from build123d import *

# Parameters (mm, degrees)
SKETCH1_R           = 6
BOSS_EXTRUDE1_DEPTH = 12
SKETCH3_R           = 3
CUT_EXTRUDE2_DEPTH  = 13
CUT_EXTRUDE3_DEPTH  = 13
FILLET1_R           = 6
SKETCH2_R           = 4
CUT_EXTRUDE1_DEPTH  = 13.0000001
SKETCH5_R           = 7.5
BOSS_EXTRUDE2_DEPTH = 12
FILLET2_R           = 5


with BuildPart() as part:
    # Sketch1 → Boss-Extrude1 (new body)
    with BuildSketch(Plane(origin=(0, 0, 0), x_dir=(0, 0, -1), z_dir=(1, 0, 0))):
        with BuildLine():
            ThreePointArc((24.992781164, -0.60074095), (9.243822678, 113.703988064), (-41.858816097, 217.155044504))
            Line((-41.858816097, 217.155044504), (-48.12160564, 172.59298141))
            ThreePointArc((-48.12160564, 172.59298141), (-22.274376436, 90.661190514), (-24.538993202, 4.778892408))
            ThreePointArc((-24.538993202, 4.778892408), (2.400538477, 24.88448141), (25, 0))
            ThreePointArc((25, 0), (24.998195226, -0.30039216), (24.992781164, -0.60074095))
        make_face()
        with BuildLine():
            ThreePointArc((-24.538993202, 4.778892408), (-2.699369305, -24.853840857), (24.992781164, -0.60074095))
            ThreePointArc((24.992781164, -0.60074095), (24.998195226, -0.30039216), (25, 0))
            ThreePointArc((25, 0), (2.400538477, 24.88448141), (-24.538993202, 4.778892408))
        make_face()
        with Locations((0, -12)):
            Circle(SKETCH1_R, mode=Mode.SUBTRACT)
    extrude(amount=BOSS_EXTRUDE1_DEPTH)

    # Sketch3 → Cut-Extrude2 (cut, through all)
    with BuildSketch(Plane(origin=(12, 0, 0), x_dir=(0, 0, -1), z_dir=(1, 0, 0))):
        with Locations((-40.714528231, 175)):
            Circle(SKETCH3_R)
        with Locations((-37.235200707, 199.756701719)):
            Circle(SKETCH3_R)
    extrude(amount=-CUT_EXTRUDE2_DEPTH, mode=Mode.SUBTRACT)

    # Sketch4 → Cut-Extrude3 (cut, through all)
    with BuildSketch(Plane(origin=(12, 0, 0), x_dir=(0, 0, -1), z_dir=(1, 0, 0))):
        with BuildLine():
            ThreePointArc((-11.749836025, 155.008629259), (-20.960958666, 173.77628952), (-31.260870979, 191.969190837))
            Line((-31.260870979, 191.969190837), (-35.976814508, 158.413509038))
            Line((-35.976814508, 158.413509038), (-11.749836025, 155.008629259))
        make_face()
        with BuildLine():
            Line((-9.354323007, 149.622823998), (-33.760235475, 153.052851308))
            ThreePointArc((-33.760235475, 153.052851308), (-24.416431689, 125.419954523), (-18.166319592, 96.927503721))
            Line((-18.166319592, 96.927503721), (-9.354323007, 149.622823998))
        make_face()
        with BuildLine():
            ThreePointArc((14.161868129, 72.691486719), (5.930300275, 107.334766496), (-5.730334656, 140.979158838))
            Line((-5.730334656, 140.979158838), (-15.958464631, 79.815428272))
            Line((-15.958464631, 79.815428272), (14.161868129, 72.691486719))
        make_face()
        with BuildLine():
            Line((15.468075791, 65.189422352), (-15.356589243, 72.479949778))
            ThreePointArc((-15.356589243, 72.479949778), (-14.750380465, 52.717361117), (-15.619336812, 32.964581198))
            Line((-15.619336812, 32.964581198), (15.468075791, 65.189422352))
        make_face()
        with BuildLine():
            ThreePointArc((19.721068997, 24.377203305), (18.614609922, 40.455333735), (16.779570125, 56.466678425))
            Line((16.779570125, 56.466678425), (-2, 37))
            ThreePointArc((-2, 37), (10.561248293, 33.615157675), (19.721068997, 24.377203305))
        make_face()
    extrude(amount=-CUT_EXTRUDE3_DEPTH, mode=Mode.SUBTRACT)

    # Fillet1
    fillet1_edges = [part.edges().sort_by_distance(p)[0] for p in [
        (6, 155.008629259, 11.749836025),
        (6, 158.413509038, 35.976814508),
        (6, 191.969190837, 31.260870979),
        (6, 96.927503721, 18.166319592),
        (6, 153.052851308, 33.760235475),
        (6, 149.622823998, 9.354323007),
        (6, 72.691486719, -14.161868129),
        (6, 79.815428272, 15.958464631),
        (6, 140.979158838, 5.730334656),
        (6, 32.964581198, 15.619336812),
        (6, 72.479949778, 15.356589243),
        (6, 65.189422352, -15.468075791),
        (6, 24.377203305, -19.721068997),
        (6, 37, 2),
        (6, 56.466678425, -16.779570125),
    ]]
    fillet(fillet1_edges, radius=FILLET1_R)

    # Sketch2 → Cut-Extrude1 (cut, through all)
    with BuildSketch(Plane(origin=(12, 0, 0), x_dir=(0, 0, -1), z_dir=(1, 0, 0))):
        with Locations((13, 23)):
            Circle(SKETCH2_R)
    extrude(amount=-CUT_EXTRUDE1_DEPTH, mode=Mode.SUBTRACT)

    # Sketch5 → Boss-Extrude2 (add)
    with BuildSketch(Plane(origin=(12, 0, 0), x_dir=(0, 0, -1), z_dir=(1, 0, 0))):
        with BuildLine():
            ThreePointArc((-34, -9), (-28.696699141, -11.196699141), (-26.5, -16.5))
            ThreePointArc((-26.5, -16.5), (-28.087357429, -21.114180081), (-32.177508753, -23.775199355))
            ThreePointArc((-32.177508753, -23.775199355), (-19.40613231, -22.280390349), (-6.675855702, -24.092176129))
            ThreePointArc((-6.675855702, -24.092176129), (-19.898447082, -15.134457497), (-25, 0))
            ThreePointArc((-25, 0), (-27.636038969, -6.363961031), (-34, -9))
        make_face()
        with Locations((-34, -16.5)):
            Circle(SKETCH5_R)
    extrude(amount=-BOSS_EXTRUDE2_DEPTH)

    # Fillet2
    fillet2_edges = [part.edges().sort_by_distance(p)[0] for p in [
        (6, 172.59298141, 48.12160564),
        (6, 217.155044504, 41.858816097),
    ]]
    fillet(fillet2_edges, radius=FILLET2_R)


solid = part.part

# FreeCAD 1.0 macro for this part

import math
import FreeCAD as App
import Part
import Sketcher
from FreeCAD import Vector
Q = App.Units.Quantity


def edges_at(feature, points):
    """Names of the edges that pass closest to the given points."""
    edges = feature.Shape.Edges
    near = lambda p: min(range(len(edges)), key=lambda i: edges[i].distToShape(Part.Vertex(*p))[0])
    return sorted({f"Edge{near(p) + 1}" for p in points})

doc = App.newDocument("Part")
params = doc.addObject("Spreadsheet::Sheet", "Params")
for row, (alias, value) in enumerate([
    ("sketch1_diameter", "12 mm"),
    ("sketch1_radius", "360 mm"),
    ("sketch1_radius2", "260 mm"),
    ("sketch1_radius3", "25 mm"),
    ("sketch1_length", "45 mm"),
    ("pad1_length", "12 mm"),
    ("sketch2_diameter", "6 mm"),
    ("sketch3_radius", "355 mm"),
    ("sketch3_radius2", "265 mm"),
    ("sketch3_radius3", "25 mm"),
    ("fillet_radius", "6 mm"),
    ("sketch4_diameter", "8 mm"),
    ("sketch5_radius", "50 mm"),
    ("sketch5_radius2", "25 mm"),
    ("sketch5_radius3", "9 mm"),
    ("sketch5_radius4", "7.5 mm"),
    ("pad2_length", "12 mm"),
    ("fillet2_radius", "5 mm"),
], start=1):
    params.set(f"A{row}", alias)
    params.set(f"B{row}", "=" + value)
    params.setAlias(f"B{row}", alias)

body = doc.addObject("PartDesign::Body", "Body")

sketch1 = body.newObject("Sketcher::SketchObject", "Sketch")
sketch1.AttachmentSupport = (doc.getObject("YZ_Plane"), [""])
sketch1.MapMode = "FlatFace"
sketch1.addGeometry(Part.ArcOfCircle(Part.Circle(Vector(8.049929, 334.903268, 0), Vector(0, 0, 1), 360), math.radians(-91.376929), math.radians(-54.489824)), False)
sketch1.addGeometry(Part.LineSegment(Vector(217.155045, 41.858816, 0), Vector(172.592981, 48.121606, 0)), False)
sketch1.addGeometry(Part.ArcOfCircle(Part.Circle(Vector(54.479373, 279.744522, 0), Vector(0, 0, 1), 260), math.radians(-101.020237), math.radians(-62.981182)), False)
sketch1.addGeometry(Part.ArcOfCircle(Part.Circle(Vector(0, 0, 0), Vector(0, 0, 1), 25), math.radians(78.979763), math.radians(268.623071)), False)
sketch1.addGeometry(Part.Circle(Vector(-12, 0, 0), Vector(0, 0, 1), 6), False)
sketch1.addConstraint(Sketcher.Constraint("Coincident", 0, 2, 1, 1))
sketch1.addConstraint(Sketcher.Constraint("Coincident", 1, 2, 2, 2))
sketch1.addConstraint(Sketcher.Constraint("Tangent", 2, 1, 3, 1))
sketch1.addConstraint(Sketcher.Constraint("Tangent", 3, 2, 0, 1))
sketch1.addConstraint(Sketcher.Constraint("Coincident", 3, 3, -1, 1))
sketch1.addConstraint(Sketcher.Constraint("PointOnObject", 4, 3, -1))
sketch1.addConstraint(Sketcher.Constraint("Diameter", 4, Q("12 mm")))
sketch1.addConstraint(Sketcher.Constraint("Radius", 0, Q("360 mm")))
sketch1.addConstraint(Sketcher.Constraint("Radius", 2, Q("260 mm")))
sketch1.addConstraint(Sketcher.Constraint("Radius", 3, Q("25 mm")))
sketch1.addConstraint(Sketcher.Constraint("Angle", 1, Q("172 deg")))
sketch1.addConstraint(Sketcher.Constraint("Distance", 1, Q("45 mm")))
sketch1.addConstraint(Sketcher.Constraint("DistanceX", 4, 3, -1, 1, Q("12 mm")))
sketch1.addConstraint(Sketcher.Constraint("DistanceX", -1, 1, 0, 3, Q("8.049929 mm")))
sketch1.addConstraint(Sketcher.Constraint("DistanceX", -1, 1, 1, 2, Q("172.592981 mm")))
sketch1.setExpression("Constraints[6]", "Params.sketch1_diameter")
sketch1.setExpression("Constraints[7]", "Params.sketch1_radius")
sketch1.setExpression("Constraints[8]", "Params.sketch1_radius2")
sketch1.setExpression("Constraints[9]", "Params.sketch1_radius3")
sketch1.setExpression("Constraints[11]", "Params.sketch1_length")
pad1 = body.newObject("PartDesign::Pad", "Pad")
pad1.Profile = sketch1
pad1.setExpression("Length", "Params.pad1_length")

sketch2 = body.newObject("Sketcher::SketchObject", "Sketch001")
sketch2.AttachmentSupport = (doc.getObject("YZ_Plane"), [""])
sketch2.MapMode = "FlatFace"
sketch2.AttachmentOffset = App.Placement(Vector(0, 0, 12), App.Rotation())
sketch2.addGeometry(Part.Circle(Vector(175, 40.714528, 0), Vector(0, 0, 1), 3), False)
sketch2.addGeometry(Part.Circle(Vector(199.756702, 37.235201, 0), Vector(0, 0, 1), 3), False)
sketch2.addConstraint(Sketcher.Constraint("Equal", 0, 1))
sketch2.addConstraint(Sketcher.Constraint("Diameter", 0, Q("6 mm")))
sketch2.addConstraint(Sketcher.Constraint("DistanceX", -1, 1, 0, 3, Q("175 mm")))
sketch2.addConstraint(Sketcher.Constraint("DistanceX", -1, 1, 1, 3, Q("199.756702 mm")))
sketch2.addConstraint(Sketcher.Constraint("DistanceY", -1, 1, 1, 3, Q("37.235201 mm")))
sketch2.addConstraint(Sketcher.Constraint("DistanceY", -1, 1, 0, 3, Q("40.714528 mm")))
sketch2.setExpression("Constraints[1]", "Params.sketch2_diameter")
pocket1 = body.newObject("PartDesign::Pocket", "Pocket")
pocket1.Profile = sketch2
pocket1.Type = "ThroughAll"

sketch3 = body.newObject("Sketcher::SketchObject", "Sketch002")
sketch3.AttachmentSupport = (doc.getObject("YZ_Plane"), [""])
sketch3.MapMode = "FlatFace"
sketch3.AttachmentOffset = App.Placement(Vector(0, 0, 12), App.Rotation())
sketch3.addGeometry(Part.ArcOfCircle(Part.Circle(Vector(8.049929, 334.903268, 0), Vector(0, 0, 1), 355), math.radians(-65.545646), math.radians(-58.796288)), False)
sketch3.addGeometry(Part.LineSegment(Vector(191.969191, 31.260871, 0), Vector(158.413509, 35.976815, 0)), False)
sketch3.addGeometry(Part.LineSegment(Vector(158.413509, 35.976815, 0), Vector(155.008629, 11.749836, 0)), False)
sketch3.addGeometry(Part.LineSegment(Vector(149.622824, 9.354323, 0), Vector(153.052851, 33.760235, 0)), False)
sketch3.addGeometry(Part.ArcOfCircle(Part.Circle(Vector(54.479373, 279.744522, 0), Vector(0, 0, 1), 265), math.radians(-80.782562), math.radians(-68.162504)), False)
sketch3.addGeometry(Part.LineSegment(Vector(96.927504, 18.16632, 0), Vector(149.622824, 9.354323, 0)), False)
sketch3.addGeometry(Part.ArcOfCircle(Part.Circle(Vector(8.049929, 334.903268, 0), Vector(0, 0, 1), 355), math.radians(-79.508544), math.radians(-68.009767)), False)
sketch3.addGeometry(Part.LineSegment(Vector(140.979159, 5.730335, 0), Vector(79.815428, 15.958465, 0)), False)
sketch3.addGeometry(Part.LineSegment(Vector(79.815428, 15.958465, 0), Vector(72.691487, -14.161868, 0)), False)
sketch3.addGeometry(Part.LineSegment(Vector(65.189422, -15.468076, 0), Vector(72.47995, 15.356589, 0)), False)
sketch3.addGeometry(Part.ArcOfCircle(Part.Circle(Vector(54.479373, 279.744522, 0), Vector(0, 0, 1), 265), math.radians(-94.656849), math.radians(-86.105087)), False)
sketch3.addGeometry(Part.LineSegment(Vector(32.964581, 15.619337, 0), Vector(65.189422, -15.468076, 0)), False)
sketch3.addGeometry(Part.ArcOfCircle(Part.Circle(Vector(8.049929, 334.903268, 0), Vector(0, 0, 1), 355.000001), math.radians(-87.363904), math.radians(-82.161272)), False)
sketch3.addGeometry(Part.LineSegment(Vector(56.466678, -16.77957, 0), Vector(37, 2, 0)), False)
sketch3.addGeometry(Part.ArcOfCircle(Part.Circle(Vector(12, 2, 0), Vector(0, 0, 1), 25), math.radians(-60.324438), math.radians(0)), False)
sketch3.addConstraint(Sketcher.Constraint("Coincident", 0, 2, 1, 1))
sketch3.addConstraint(Sketcher.Constraint("Coincident", 1, 2, 2, 1))
sketch3.addConstraint(Sketcher.Constraint("Coincident", 2, 2, 0, 1))
sketch3.addConstraint(Sketcher.Constraint("Coincident", 3, 2, 4, 2))
sketch3.addConstraint(Sketcher.Constraint("Coincident", 4, 1, 5, 1))
sketch3.addConstraint(Sketcher.Constraint("Coincident", 5, 2, 3, 1))
sketch3.addConstraint(Sketcher.Constraint("Coincident", 6, 2, 7, 1))
sketch3.addConstraint(Sketcher.Constraint("Coincident", 7, 2, 8, 1))
sketch3.addConstraint(Sketcher.Constraint("Coincident", 8, 2, 6, 1))
sketch3.addConstraint(Sketcher.Constraint("Coincident", 9, 2, 10, 2))
sketch3.addConstraint(Sketcher.Constraint("Coincident", 10, 1, 11, 1))
sketch3.addConstraint(Sketcher.Constraint("Coincident", 11, 2, 9, 1))
sketch3.addConstraint(Sketcher.Constraint("Coincident", 12, 2, 13, 1))
sketch3.addConstraint(Sketcher.Constraint("Coincident", 13, 2, 14, 2))
sketch3.addConstraint(Sketcher.Constraint("Coincident", 14, 1, 12, 1))
sketch3.addConstraint(Sketcher.Constraint("Coincident", 6, 3, 0, 3))
sketch3.addConstraint(Sketcher.Constraint("Coincident", 10, 3, 4, 3))
sketch3.addConstraint(Sketcher.Constraint("Coincident", 12, 3, 0, 3))
sketch3.addConstraint(Sketcher.Constraint("Equal", 0, 6))
sketch3.addConstraint(Sketcher.Constraint("Equal", 4, 10))
sketch3.addConstraint(Sketcher.Constraint("Equal", 6, 12))
sketch3.addConstraint(Sketcher.Constraint("Perpendicular", 1, 2))
sketch3.addConstraint(Sketcher.Constraint("Parallel", 2, 3))
sketch3.addConstraint(Sketcher.Constraint("Parallel", 5, 7))
sketch3.addConstraint(Sketcher.Constraint("Parallel", 8, 9))
sketch3.addConstraint(Sketcher.Constraint("Parallel", 11, 13))
sketch3.addConstraint(Sketcher.Constraint("Horizontal", 14, 3, 13, 2))
sketch3.addConstraint(Sketcher.Constraint("Radius", 0, Q("355 mm")))
sketch3.addConstraint(Sketcher.Constraint("Radius", 4, Q("265 mm")))
sketch3.addConstraint(Sketcher.Constraint("Radius", 14, Q("25 mm")))
sketch3.addConstraint(Sketcher.Constraint("Angle", 1, Q("172 deg")))
sketch3.addConstraint(Sketcher.Constraint("DistanceX", -1, 1, 14, 3, Q("12 mm")))
sketch3.addConstraint(Sketcher.Constraint("DistanceY", -1, 1, 14, 3, Q("2 mm")))
sketch3.addConstraint(Sketcher.Constraint("DistanceY", 2, 2, 3, 2, Q("22.010399 mm")))
sketch3.addConstraint(Sketcher.Constraint("DistanceY", 6, 2, 2, 2, Q("6.019501 mm")))
sketch3.addConstraint(Sketcher.Constraint("DistanceX", 7, 2, 2, 2, Q("75.193201 mm")))
sketch3.addConstraint(Sketcher.Constraint("DistanceY", 12, 2, 8, 2, Q("2.617702 mm")))
sketch3.addConstraint(Sketcher.Constraint("DistanceY", 14, 1, 12, 2, Q("2.941499 mm")))
sketch3.addConstraint(Sketcher.Constraint("Distance", 2, Q("24.465071 mm")))
sketch3.addConstraint(Sketcher.Constraint("Distance", 11, Q("44.775748 mm")))
sketch3.addConstraint(Sketcher.Constraint("DistanceX", -1, 1, 0, 3, Q("8.049929 mm")))
sketch3.addConstraint(Sketcher.Constraint("DistanceY", -1, 1, 12, 3, Q("334.903268 mm")))
sketch3.addConstraint(Sketcher.Constraint("DistanceX", -1, 1, 1, 2, Q("158.413509 mm")))
sketch3.addConstraint(Sketcher.Constraint("DistanceX", -1, 1, 3, 2, Q("153.052851 mm")))
sketch3.addConstraint(Sketcher.Constraint("DistanceY", -1, 1, 4, 1, Q("18.16632 mm")))
sketch3.addConstraint(Sketcher.Constraint("DistanceX", -1, 1, 9, 2, Q("72.47995 mm")))
sketch3.addConstraint(Sketcher.Constraint("DistanceY", -1, 1, 9, 2, Q("15.356589 mm")))
sketch3.addConstraint(Sketcher.Constraint("DistanceY", 5, 2, 1, 2, Q("26.622492 mm")))
sketch3.setExpression("Constraints[27]", "Params.sketch3_radius")
sketch3.setExpression("Constraints[28]", "Params.sketch3_radius2")
sketch3.setExpression("Constraints[29]", "Params.sketch3_radius3")
pocket2 = body.newObject("PartDesign::Pocket", "Pocket001")
pocket2.Profile = sketch3
pocket2.Type = "ThroughAll"
doc.recompute()

fillet = body.newObject("PartDesign::Fillet", "Fillet")
fillet.Base = (pocket2, edges_at(pocket2, [
    (6, 155.009, 11.75),
    (6, 158.414, 35.977),
    (6, 191.969, 31.261),
    (6, 96.928, 18.166),
    (6, 153.053, 33.76),
    (6, 149.623, 9.354),
    (6, 72.691, -14.162),
    (6, 79.815, 15.958),
    (6, 140.979, 5.73),
    (6, 32.965, 15.619),
    (6, 72.48, 15.357),
    (6, 65.189, -15.468),
    (6, 24.377, -19.721),
    (6, 37, 2),
    (6, 56.467, -16.78),
]))
fillet.setExpression("Radius", "Params.fillet_radius")

sketch4 = body.newObject("Sketcher::SketchObject", "Sketch003")
sketch4.AttachmentSupport = (doc.getObject("YZ_Plane"), [""])
sketch4.MapMode = "FlatFace"
sketch4.AttachmentOffset = App.Placement(Vector(0, 0, 12), App.Rotation())
sketch4.addGeometry(Part.Circle(Vector(23, -13, 0), Vector(0, 0, 1), 4), False)
sketch4.addConstraint(Sketcher.Constraint("Diameter", 0, Q("8 mm")))
sketch4.addConstraint(Sketcher.Constraint("DistanceX", -1, 1, 0, 3, Q("23 mm")))
sketch4.addConstraint(Sketcher.Constraint("DistanceY", 0, 3, -1, 1, Q("13 mm")))
sketch4.setExpression("Constraints[0]", "Params.sketch4_diameter")
pocket3 = body.newObject("PartDesign::Pocket", "Pocket002")
pocket3.Profile = sketch4
pocket3.Type = "ThroughAll"

sketch5 = body.newObject("Sketcher::SketchObject", "Sketch004")
sketch5.AttachmentSupport = (doc.getObject("YZ_Plane"), [""])
sketch5.MapMode = "FlatFace"
sketch5.AttachmentOffset = App.Placement(Vector(0, 0, 12), App.Rotation())
sketch5.addGeometry(Part.ArcOfCircle(Part.Circle(Vector(-72.276528, 20.027567, 0), Vector(0, 0, 1), 50), math.radians(-15.487862), math.radians(14.063602)), False)
sketch5.addGeometry(Part.ArcOfCircle(Part.Circle(Vector(0, 0, 0), Vector(0, 0, 1), 25), math.radians(90), math.radians(164.512138)), False)
sketch5.addGeometry(Part.ArcOfCircle(Part.Circle(Vector(0, 34, 0), Vector(0, 0, 1), 9), math.radians(180), math.radians(270)), False)
sketch5.addGeometry(Part.ArcOfCircle(Part.Circle(Vector(-16.5, 34, 0), Vector(0, 0, 1), 7.5), math.radians(0), math.radians(194.063602)), False)
sketch5.addConstraint(Sketcher.Constraint("Tangent", 0, 1, 1, 2))
sketch5.addConstraint(Sketcher.Constraint("Tangent", 1, 1, 2, 2))
sketch5.addConstraint(Sketcher.Constraint("Tangent", 2, 1, 3, 1))
sketch5.addConstraint(Sketcher.Constraint("Tangent", 3, 2, 0, 2))
sketch5.addConstraint(Sketcher.Constraint("Coincident", 1, 3, -1, 1))
sketch5.addConstraint(Sketcher.Constraint("PointOnObject", 2, 3, -2))
sketch5.addConstraint(Sketcher.Constraint("Horizontal", 2, 3, 3, 3))
sketch5.addConstraint(Sketcher.Constraint("Radius", 0, Q("50 mm")))
sketch5.addConstraint(Sketcher.Constraint("Radius", 1, Q("25 mm")))
sketch5.addConstraint(Sketcher.Constraint("Radius", 2, Q("9 mm")))
sketch5.addConstraint(Sketcher.Constraint("Radius", 3, Q("7.5 mm")))
sketch5.setExpression("Constraints[7]", "Params.sketch5_radius")
sketch5.setExpression("Constraints[8]", "Params.sketch5_radius2")
sketch5.setExpression("Constraints[9]", "Params.sketch5_radius3")
sketch5.setExpression("Constraints[10]", "Params.sketch5_radius4")
pad2 = body.newObject("PartDesign::Pad", "Pad001")
pad2.Profile = sketch5
pad2.setExpression("Length", "Params.pad2_length")
pad2.Reversed = True
doc.recompute()

fillet2 = body.newObject("PartDesign::Fillet", "Fillet001")
fillet2.Base = (pad2, edges_at(pad2, [(6, 172.593, 48.122), (6, 217.155, 41.859)]))
fillet2.setExpression("Radius", "Params.fillet2_radius")

doc.recompute()
